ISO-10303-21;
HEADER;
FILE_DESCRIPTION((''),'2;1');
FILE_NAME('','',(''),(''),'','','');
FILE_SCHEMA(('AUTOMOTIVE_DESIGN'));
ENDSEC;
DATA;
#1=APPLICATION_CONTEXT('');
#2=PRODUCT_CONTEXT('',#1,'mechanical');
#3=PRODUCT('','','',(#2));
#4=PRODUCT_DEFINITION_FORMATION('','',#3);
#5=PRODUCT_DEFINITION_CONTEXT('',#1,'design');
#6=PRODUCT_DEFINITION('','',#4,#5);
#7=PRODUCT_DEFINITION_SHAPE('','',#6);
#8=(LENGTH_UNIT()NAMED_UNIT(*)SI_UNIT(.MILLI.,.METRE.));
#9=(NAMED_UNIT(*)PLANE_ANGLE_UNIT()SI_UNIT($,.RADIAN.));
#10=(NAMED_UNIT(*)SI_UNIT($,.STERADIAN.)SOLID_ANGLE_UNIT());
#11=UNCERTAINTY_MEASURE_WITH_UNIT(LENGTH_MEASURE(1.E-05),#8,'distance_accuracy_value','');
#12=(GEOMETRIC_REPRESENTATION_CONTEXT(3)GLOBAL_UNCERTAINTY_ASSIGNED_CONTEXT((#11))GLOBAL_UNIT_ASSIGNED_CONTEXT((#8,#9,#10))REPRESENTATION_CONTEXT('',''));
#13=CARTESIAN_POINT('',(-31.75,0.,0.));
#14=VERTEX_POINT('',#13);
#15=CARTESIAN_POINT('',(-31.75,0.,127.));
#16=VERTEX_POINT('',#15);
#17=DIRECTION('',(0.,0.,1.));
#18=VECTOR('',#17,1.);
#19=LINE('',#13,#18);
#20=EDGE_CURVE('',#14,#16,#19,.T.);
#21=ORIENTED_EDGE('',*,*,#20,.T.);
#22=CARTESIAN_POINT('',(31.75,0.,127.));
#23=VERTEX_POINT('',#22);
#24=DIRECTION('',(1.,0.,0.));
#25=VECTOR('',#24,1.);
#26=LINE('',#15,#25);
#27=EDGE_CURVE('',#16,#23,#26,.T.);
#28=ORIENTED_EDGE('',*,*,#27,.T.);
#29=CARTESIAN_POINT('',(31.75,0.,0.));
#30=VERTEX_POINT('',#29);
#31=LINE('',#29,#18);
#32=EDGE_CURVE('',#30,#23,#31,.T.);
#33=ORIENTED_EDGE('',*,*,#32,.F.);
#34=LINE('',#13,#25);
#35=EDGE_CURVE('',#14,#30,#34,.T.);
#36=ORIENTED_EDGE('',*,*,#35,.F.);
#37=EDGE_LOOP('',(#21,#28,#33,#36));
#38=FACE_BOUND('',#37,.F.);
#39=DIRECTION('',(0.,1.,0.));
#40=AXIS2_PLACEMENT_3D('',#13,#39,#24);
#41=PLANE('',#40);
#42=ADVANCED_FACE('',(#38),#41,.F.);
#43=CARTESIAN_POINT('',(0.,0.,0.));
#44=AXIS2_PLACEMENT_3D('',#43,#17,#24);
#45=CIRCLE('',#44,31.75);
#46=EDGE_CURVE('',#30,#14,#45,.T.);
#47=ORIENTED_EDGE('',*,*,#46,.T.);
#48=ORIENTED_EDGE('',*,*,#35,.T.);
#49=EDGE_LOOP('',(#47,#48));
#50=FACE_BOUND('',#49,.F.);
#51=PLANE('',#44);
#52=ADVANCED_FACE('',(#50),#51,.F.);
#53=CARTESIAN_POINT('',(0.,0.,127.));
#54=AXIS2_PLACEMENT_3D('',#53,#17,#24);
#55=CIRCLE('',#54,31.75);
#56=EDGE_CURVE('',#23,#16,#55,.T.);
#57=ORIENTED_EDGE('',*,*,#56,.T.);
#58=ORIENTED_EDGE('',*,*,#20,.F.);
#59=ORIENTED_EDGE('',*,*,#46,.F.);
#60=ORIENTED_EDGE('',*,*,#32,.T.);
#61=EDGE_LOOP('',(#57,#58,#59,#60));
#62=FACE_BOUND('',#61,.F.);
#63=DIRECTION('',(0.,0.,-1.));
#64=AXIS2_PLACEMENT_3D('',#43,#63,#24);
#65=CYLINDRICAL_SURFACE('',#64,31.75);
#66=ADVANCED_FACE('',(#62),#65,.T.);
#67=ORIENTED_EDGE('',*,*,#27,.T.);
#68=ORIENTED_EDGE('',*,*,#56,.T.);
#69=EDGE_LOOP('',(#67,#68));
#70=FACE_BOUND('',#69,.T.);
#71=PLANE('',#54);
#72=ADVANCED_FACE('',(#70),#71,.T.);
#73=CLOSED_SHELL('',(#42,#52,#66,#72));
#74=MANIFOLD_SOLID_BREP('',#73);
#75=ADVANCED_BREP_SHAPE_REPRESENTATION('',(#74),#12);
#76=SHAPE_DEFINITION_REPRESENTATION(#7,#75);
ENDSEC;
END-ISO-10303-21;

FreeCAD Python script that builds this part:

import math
import FreeCAD as App
import Part
import Sketcher

V = App.Vector
Q = App.Units.Quantity

doc = App.newDocument("Part")
body = doc.addObject("PartDesign::Body", "Body")

sketch1 = body.newObject("Sketcher::SketchObject", "Sketch")
sketch1.AttachmentSupport = (doc.getObject("XY_Plane"), [""])
sketch1.MapMode = "FlatFace"
sketch1.addGeometry(Part.LineSegment(V(-32, 0, 0), V(32, 0, 0)), False)
sketch1.addGeometry(Part.ArcOfCircle(Part.Circle(V(0, 0, 0), V(0, 0, 1), 32), math.radians(0), math.radians(180)), False)
sketch1.addConstraint(Sketcher.Constraint("Coincident", 0, 1, 1, 2))
sketch1.addConstraint(Sketcher.Constraint("Coincident", 1, 1, 0, 2))
sketch1.addConstraint(Sketcher.Constraint("Horizontal", 0))
sketch1.addConstraint(Sketcher.Constraint("Coincident", 1, 3, -1, 1))
sketch1.addConstraint(Sketcher.Constraint("PointOnObject", 0, 1, -1))
sketch1.addConstraint(Sketcher.Constraint("Radius", 1, Q("1.25 in")))
pad1 = body.newObject("PartDesign::Pad", "Pad")
pad1.Profile = sketch1
pad1.Length = Q("5 in")

doc.recompute()
